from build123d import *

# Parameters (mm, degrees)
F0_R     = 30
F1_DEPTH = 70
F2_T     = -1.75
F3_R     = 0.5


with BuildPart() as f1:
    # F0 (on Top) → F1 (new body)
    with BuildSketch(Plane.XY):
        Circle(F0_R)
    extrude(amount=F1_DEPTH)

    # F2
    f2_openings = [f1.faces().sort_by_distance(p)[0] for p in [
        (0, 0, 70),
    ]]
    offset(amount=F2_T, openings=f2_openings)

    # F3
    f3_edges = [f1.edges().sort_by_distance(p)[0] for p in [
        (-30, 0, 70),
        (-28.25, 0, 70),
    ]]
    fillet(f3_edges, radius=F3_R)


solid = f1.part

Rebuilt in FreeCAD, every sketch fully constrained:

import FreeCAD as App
import Part
import Sketcher
from FreeCAD import Vector


def edges_at(feature, points):
    """Names of the edges that pass closest to the given points."""
    edges = feature.Shape.Edges
    near = lambda p: min(range(len(edges)), key=lambda i: edges[i].distToShape(Part.Vertex(*p))[0])
    return sorted({f"Edge{near(p) + 1}" for p in points})


def faces_at(feature, points):
    """Names of the faces that lie closest to the given points."""
    faces = feature.Shape.Faces
    near = lambda p: min(range(len(faces)), key=lambda i: faces[i].distToShape(Part.Vertex(*p))[0])
    return sorted({f"Face{near(p) + 1}" for p in points})

doc = App.newDocument("Part")
body = doc.addObject("PartDesign::Body", "Body")

sketch1 = doc.addObject("Sketcher::SketchObject", "Sketch")
body.addObject(sketch1)
sketch1.AttachmentSupport = (doc.XY_Plane, [""])
sketch1.MapMode = "FlatFace"
sketch1.addGeometry(Part.Circle(Vector(0, 0, 0), Vector(0, 0, 1), 30), False)
sketch1.addConstraint([
    Sketcher.Constraint("Coincident", 0, 3, -1, 1),
    Sketcher.Constraint("Diameter", 0, 60.0),
])
pad1 = doc.addObject("PartDesign::Pad", "Pad")
body.addObject(pad1)
pad1.Profile = sketch1
pad1.Length = 70
doc.recompute()

thickness = doc.addObject("PartDesign::Thickness", "Thickness")
body.addObject(thickness)
thickness.Base = (pad1, faces_at(pad1, [(0, 0, 70)]))
thickness.Value = 1.75
thickness.Reversed = True
thickness.Join = "Arc"
doc.recompute()

fillet = doc.addObject("PartDesign::Fillet", "Fillet")
body.addObject(fillet)
fillet.Base = (thickness, edges_at(thickness, [(-30, 0, 70), (-28.25, 0, 70)]))
fillet.Radius = 0.5

doc.recompute()
